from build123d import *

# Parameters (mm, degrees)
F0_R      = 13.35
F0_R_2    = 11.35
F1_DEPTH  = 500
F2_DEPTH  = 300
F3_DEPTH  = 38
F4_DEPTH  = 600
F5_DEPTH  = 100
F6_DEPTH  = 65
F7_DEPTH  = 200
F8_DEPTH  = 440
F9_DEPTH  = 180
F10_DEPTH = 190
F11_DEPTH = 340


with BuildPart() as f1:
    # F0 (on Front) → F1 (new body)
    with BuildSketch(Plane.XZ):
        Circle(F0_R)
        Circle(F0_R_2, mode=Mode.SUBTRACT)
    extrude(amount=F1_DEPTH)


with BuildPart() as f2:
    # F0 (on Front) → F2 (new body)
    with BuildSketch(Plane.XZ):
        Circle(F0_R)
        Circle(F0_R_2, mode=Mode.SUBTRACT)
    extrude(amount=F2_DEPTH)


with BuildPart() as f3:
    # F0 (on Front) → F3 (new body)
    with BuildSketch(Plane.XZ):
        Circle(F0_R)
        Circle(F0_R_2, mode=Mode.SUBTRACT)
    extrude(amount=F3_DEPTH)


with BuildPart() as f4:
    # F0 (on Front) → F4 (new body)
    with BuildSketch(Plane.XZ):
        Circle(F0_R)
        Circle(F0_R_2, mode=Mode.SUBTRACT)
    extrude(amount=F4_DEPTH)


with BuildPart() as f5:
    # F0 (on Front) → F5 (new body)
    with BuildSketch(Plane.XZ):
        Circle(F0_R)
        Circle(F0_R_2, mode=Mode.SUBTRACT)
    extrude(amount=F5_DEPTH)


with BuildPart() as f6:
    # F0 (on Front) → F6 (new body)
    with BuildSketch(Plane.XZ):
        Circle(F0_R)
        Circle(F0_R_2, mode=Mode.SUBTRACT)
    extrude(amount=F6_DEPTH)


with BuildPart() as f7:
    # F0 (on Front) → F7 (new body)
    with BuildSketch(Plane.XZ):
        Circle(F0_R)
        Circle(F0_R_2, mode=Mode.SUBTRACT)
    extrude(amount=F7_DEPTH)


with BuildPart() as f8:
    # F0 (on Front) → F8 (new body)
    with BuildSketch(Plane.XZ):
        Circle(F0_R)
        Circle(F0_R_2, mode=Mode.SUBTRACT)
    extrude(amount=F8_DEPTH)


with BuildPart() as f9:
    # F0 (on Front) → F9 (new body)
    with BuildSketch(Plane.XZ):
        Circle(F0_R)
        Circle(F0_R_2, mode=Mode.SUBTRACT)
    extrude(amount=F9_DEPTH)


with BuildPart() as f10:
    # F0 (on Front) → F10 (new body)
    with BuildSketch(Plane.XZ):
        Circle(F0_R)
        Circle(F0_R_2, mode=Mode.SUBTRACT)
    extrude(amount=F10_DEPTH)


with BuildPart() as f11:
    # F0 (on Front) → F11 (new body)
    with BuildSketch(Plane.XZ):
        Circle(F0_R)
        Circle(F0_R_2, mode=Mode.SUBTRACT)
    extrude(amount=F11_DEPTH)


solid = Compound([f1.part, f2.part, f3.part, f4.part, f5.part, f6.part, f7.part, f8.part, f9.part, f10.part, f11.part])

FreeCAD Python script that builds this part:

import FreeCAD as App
import Part
import Sketcher

V = App.Vector

doc = App.newDocument("Part")
params = doc.addObject("Spreadsheet::Sheet", "Params")
for row, (alias, value) in enumerate([
    ("sketch1_diameter", "26.7 mm"),
    ("sketch1_diameter2", "22.7 mm"),
    ("pad1_length", "500 mm"),
    ("sketch2_diameter", "26.7 mm"),
    ("sketch2_diameter2", "22.7 mm"),
    ("pad2_length", "300 mm"),
    ("sketch3_diameter", "26.7 mm"),
    ("sketch3_diameter2", "22.7 mm"),
    ("pad3_length", "38 mm"),
    ("sketch4_diameter", "26.7 mm"),
    ("sketch4_diameter2", "22.7 mm"),
    ("pad4_length", "600 mm"),
    ("sketch5_diameter", "26.7 mm"),
    ("sketch5_diameter2", "22.7 mm"),
    ("pad5_length", "100 mm"),
    ("sketch6_diameter", "26.7 mm"),
    ("sketch6_diameter2", "22.7 mm"),
    ("pad6_length", "65 mm"),
    ("sketch7_diameter", "26.7 mm"),
    ("sketch7_diameter2", "22.7 mm"),
    ("pad7_length", "200 mm"),
    ("sketch8_diameter", "26.7 mm"),
    ("sketch8_diameter2", "22.7 mm"),
    ("pad8_length", "440 mm"),
    ("sketch9_diameter", "26.7 mm"),
    ("sketch9_diameter2", "22.7 mm"),
    ("pad9_length", "180 mm"),
    ("sketch10_diameter", "26.7 mm"),
    ("sketch10_diameter2", "22.7 mm"),
    ("pad10_length", "190 mm"),
    ("sketch11_diameter", "26.7 mm"),
    ("sketch11_diameter2", "22.7 mm"),
    ("pad11_length", "340 mm"),
], start=1):
    params.set(f"A{row}", alias)
    params.set(f"B{row}", "=" + value)
    params.setAlias(f"B{row}", alias)

body = doc.addObject("PartDesign::Body", "Body")

sketch1 = body.newObject("Sketcher::SketchObject", "Sketch")
sketch1.AttachmentSupport = (doc.getObject("XZ_Plane"), [""])
sketch1.MapMode = "FlatFace"
sketch1.addGeometry(Part.Circle(V(0, 0, 0), V(0, 0, 1), 13), False)
sketch1.addGeometry(Part.Circle(V(0, 0, 0), V(0, 0, 1), 11), False)
sketch1.addConstraint(Sketcher.Constraint("Coincident", 0, 3, -1, 1))
sketch1.addConstraint(Sketcher.Constraint("Coincident", 1, 3, -1, 1))
sketch1.addConstraint(Sketcher.Constraint("Diameter", 0, 26.7))
sketch1.addConstraint(Sketcher.Constraint("Diameter", 1, 22.7))
sketch1.setExpression("Constraints[2]", "Params.sketch1_diameter")
sketch1.setExpression("Constraints[3]", "Params.sketch1_diameter2")
pad1 = body.newObject("PartDesign::Pad", "Pad")
pad1.Profile = sketch1
pad1.setExpression("Length", "Params.pad1_length")
body2 = doc.addObject("PartDesign::Body", "Body001")

sketch2 = body2.newObject("Sketcher::SketchObject", "Sketch001")
sketch2.AttachmentSupport = (doc.getObject("XZ_Plane001"), [""])
sketch2.MapMode = "FlatFace"
sketch2.addGeometry(Part.Circle(V(0, 0, 0), V(0, 0, 1), 13), False)
sketch2.addGeometry(Part.Circle(V(0, 0, 0), V(0, 0, 1), 11), False)
sketch2.addConstraint(Sketcher.Constraint("Coincident", 0, 3, -1, 1))
sketch2.addConstraint(Sketcher.Constraint("Coincident", 1, 3, -1, 1))
sketch2.addConstraint(Sketcher.Constraint("Diameter", 0, 26.7))
sketch2.addConstraint(Sketcher.Constraint("Diameter", 1, 22.7))
sketch2.setExpression("Constraints[2]", "Params.sketch2_diameter")
sketch2.setExpression("Constraints[3]", "Params.sketch2_diameter2")
pad2 = body2.newObject("PartDesign::Pad", "Pad001")
pad2.Profile = sketch2
pad2.setExpression("Length", "Params.pad2_length")
body3 = doc.addObject("PartDesign::Body", "Body002")

sketch3 = body3.newObject("Sketcher::SketchObject", "Sketch002")
sketch3.AttachmentSupport = (doc.getObject("XZ_Plane002"), [""])
sketch3.MapMode = "FlatFace"
sketch3.addGeometry(Part.Circle(V(0, 0, 0), V(0, 0, 1), 13), False)
sketch3.addGeometry(Part.Circle(V(0, 0, 0), V(0, 0, 1), 11), False)
sketch3.addConstraint(Sketcher.Constraint("Coincident", 0, 3, -1, 1))
sketch3.addConstraint(Sketcher.Constraint("Coincident", 1, 3, -1, 1))
sketch3.addConstraint(Sketcher.Constraint("Diameter", 0, 26.7))
sketch3.addConstraint(Sketcher.Constraint("Diameter", 1, 22.7))
sketch3.setExpression("Constraints[2]", "Params.sketch3_diameter")
sketch3.setExpression("Constraints[3]", "Params.sketch3_diameter2")
pad3 = body3.newObject("PartDesign::Pad", "Pad002")
pad3.Profile = sketch3
pad3.setExpression("Length", "Params.pad3_length")
body4 = doc.addObject("PartDesign::Body", "Body003")

sketch4 = body4.newObject("Sketcher::SketchObject", "Sketch003")
sketch4.AttachmentSupport = (doc.getObject("XZ_Plane003"), [""])
sketch4.MapMode = "FlatFace"
sketch4.addGeometry(Part.Circle(V(0, 0, 0), V(0, 0, 1), 13), False)
sketch4.addGeometry(Part.Circle(V(0, 0, 0), V(0, 0, 1), 11), False)
sketch4.addConstraint(Sketcher.Constraint("Coincident", 0, 3, -1, 1))
sketch4.addConstraint(Sketcher.Constraint("Coincident", 1, 3, -1, 1))
sketch4.addConstraint(Sketcher.Constraint("Diameter", 0, 26.7))
sketch4.addConstraint(Sketcher.Constraint("Diameter", 1, 22.7))
sketch4.setExpression("Constraints[2]", "Params.sketch4_diameter")
sketch4.setExpression("Constraints[3]", "Params.sketch4_diameter2")
pad4 = body4.newObject("PartDesign::Pad", "Pad003")
pad4.Profile = sketch4
pad4.setExpression("Length", "Params.pad4_length")
body5 = doc.addObject("PartDesign::Body", "Body004")

sketch5 = body5.newObject("Sketcher::SketchObject", "Sketch004")
sketch5.AttachmentSupport = (doc.getObject("XZ_Plane004"), [""])
sketch5.MapMode = "FlatFace"
sketch5.addGeometry(Part.Circle(V(0, 0, 0), V(0, 0, 1), 13), False)
sketch5.addGeometry(Part.Circle(V(0, 0, 0), V(0, 0, 1), 11), False)
sketch5.addConstraint(Sketcher.Constraint("Coincident", 0, 3, -1, 1))
sketch5.addConstraint(Sketcher.Constraint("Coincident", 1, 3, -1, 1))
sketch5.addConstraint(Sketcher.Constraint("Diameter", 0, 26.7))
sketch5.addConstraint(Sketcher.Constraint("Diameter", 1, 22.7))
sketch5.setExpression("Constraints[2]", "Params.sketch5_diameter")
sketch5.setExpression("Constraints[3]", "Params.sketch5_diameter2")
pad5 = body5.newObject("PartDesign::Pad", "Pad004")
pad5.Profile = sketch5
pad5.setExpression("Length", "Params.pad5_length")
body6 = doc.addObject("PartDesign::Body", "Body005")

sketch6 = body6.newObject("Sketcher::SketchObject", "Sketch005")
sketch6.AttachmentSupport = (doc.getObject("XZ_Plane005"), [""])
sketch6.MapMode = "FlatFace"
sketch6.addGeometry(Part.Circle(V(0, 0, 0), V(0, 0, 1), 13), False)
sketch6.addGeometry(Part.Circle(V(0, 0, 0), V(0, 0, 1), 11), False)
sketch6.addConstraint(Sketcher.Constraint("Coincident", 0, 3, -1, 1))
sketch6.addConstraint(Sketcher.Constraint("Coincident", 1, 3, -1, 1))
sketch6.addConstraint(Sketcher.Constraint("Diameter", 0, 26.7))
sketch6.addConstraint(Sketcher.Constraint("Diameter", 1, 22.7))
sketch6.setExpression("Constraints[2]", "Params.sketch6_diameter")
sketch6.setExpression("Constraints[3]", "Params.sketch6_diameter2")
pad6 = body6.newObject("PartDesign::Pad", "Pad005")
pad6.Profile = sketch6
pad6.setExpression("Length", "Params.pad6_length")
body7 = doc.addObject("PartDesign::Body", "Body006")

sketch7 = body7.newObject("Sketcher::SketchObject", "Sketch006")
sketch7.AttachmentSupport = (doc.getObject("XZ_Plane006"), [""])
sketch7.MapMode = "FlatFace"
sketch7.addGeometry(Part.Circle(V(0, 0, 0), V(0, 0, 1), 13), False)
sketch7.addGeometry(Part.Circle(V(0, 0, 0), V(0, 0, 1), 11), False)
sketch7.addConstraint(Sketcher.Constraint("Coincident", 0, 3, -1, 1))
sketch7.addConstraint(Sketcher.Constraint("Coincident", 1, 3, -1, 1))
sketch7.addConstraint(Sketcher.Constraint("Diameter", 0, 26.7))
sketch7.addConstraint(Sketcher.Constraint("Diameter", 1, 22.7))
sketch7.setExpression("Constraints[2]", "Params.sketch7_diameter")
sketch7.setExpression("Constraints[3]", "Params.sketch7_diameter2")
pad7 = body7.newObject("PartDesign::Pad", "Pad006")
pad7.Profile = sketch7
pad7.setExpression("Length", "Params.pad7_length")
body8 = doc.addObject("PartDesign::Body", "Body007")

sketch8 = body8.newObject("Sketcher::SketchObject", "Sketch007")
sketch8.AttachmentSupport = (doc.getObject("XZ_Plane007"), [""])
sketch8.MapMode = "FlatFace"
sketch8.addGeometry(Part.Circle(V(0, 0, 0), V(0, 0, 1), 13), False)
sketch8.addGeometry(Part.Circle(V(0, 0, 0), V(0, 0, 1), 11), False)
sketch8.addConstraint(Sketcher.Constraint("Coincident", 0, 3, -1, 1))
sketch8.addConstraint(Sketcher.Constraint("Coincident", 1, 3, -1, 1))
sketch8.addConstraint(Sketcher.Constraint("Diameter", 0, 26.7))
sketch8.addConstraint(Sketcher.Constraint("Diameter", 1, 22.7))
sketch8.setExpression("Constraints[2]", "Params.sketch8_diameter")
sketch8.setExpression("Constraints[3]", "Params.sketch8_diameter2")
pad8 = body8.newObject("PartDesign::Pad", "Pad007")
pad8.Profile = sketch8
pad8.setExpression("Length", "Params.pad8_length")
body9 = doc.addObject("PartDesign::Body", "Body008")

sketch9 = body9.newObject("Sketcher::SketchObject", "Sketch008")
sketch9.AttachmentSupport = (doc.getObject("XZ_Plane008"), [""])
sketch9.MapMode = "FlatFace"
sketch9.addGeometry(Part.Circle(V(0, 0, 0), V(0, 0, 1), 13), False)
sketch9.addGeometry(Part.Circle(V(0, 0, 0), V(0, 0, 1), 11), False)
sketch9.addConstraint(Sketcher.Constraint("Coincident", 0, 3, -1, 1))
sketch9.addConstraint(Sketcher.Constraint("Coincident", 1, 3, -1, 1))
sketch9.addConstraint(Sketcher.Constraint("Diameter", 0, 26.7))
sketch9.addConstraint(Sketcher.Constraint("Diameter", 1, 22.7))
sketch9.setExpression("Constraints[2]", "Params.sketch9_diameter")
sketch9.setExpression("Constraints[3]", "Params.sketch9_diameter2")
pad9 = body9.newObject("PartDesign::Pad", "Pad008")
pad9.Profile = sketch9
pad9.setExpression("Length", "Params.pad9_length")
body10 = doc.addObject("PartDesign::Body", "Body009")

sketch10 = body10.newObject("Sketcher::SketchObject", "Sketch009")
sketch10.AttachmentSupport = (doc.getObject("XZ_Plane009"), [""])
sketch10.MapMode = "FlatFace"
sketch10.addGeometry(Part.Circle(V(0, 0, 0), V(0, 0, 1), 13), False)
sketch10.addGeometry(Part.Circle(V(0, 0, 0), V(0, 0, 1), 11), False)
sketch10.addConstraint(Sketcher.Constraint("Coincident", 0, 3, -1, 1))
sketch10.addConstraint(Sketcher.Constraint("Coincident", 1, 3, -1, 1))
sketch10.addConstraint(Sketcher.Constraint("Diameter", 0, 26.7))
sketch10.addConstraint(Sketcher.Constraint("Diameter", 1, 22.7))
sketch10.setExpression("Constraints[2]", "Params.sketch10_diameter")
sketch10.setExpression("Constraints[3]", "Params.sketch10_diameter2")
pad10 = body10.newObject("PartDesign::Pad", "Pad009")
pad10.Profile = sketch10
pad10.setExpression("Length", "Params.pad10_length")
body11 = doc.addObject("PartDesign::Body", "Body010")

sketch11 = body11.newObject("Sketcher::SketchObject", "Sketch010")
sketch11.AttachmentSupport = (doc.getObject("XZ_Plane010"), [""])
sketch11.MapMode = "FlatFace"
sketch11.addGeometry(Part.Circle(V(0, 0, 0), V(0, 0, 1), 13), False)
sketch11.addGeometry(Part.Circle(V(0, 0, 0), V(0, 0, 1), 11), False)
sketch11.addConstraint(Sketcher.Constraint("Coincident", 0, 3, -1, 1))
sketch11.addConstraint(Sketcher.Constraint("Coincident", 1, 3, -1, 1))
sketch11.addConstraint(Sketcher.Constraint("Diameter", 0, 26.7))
sketch11.addConstraint(Sketcher.Constraint("Diameter", 1, 22.7))
sketch11.setExpression("Constraints[2]", "Params.sketch11_diameter")
sketch11.setExpression("Constraints[3]", "Params.sketch11_diameter2")
pad11 = body11.newObject("PartDesign::Pad", "Pad010")
pad11.Profile = sketch11
pad11.setExpression("Length", "Params.pad11_length")

doc.recompute()
